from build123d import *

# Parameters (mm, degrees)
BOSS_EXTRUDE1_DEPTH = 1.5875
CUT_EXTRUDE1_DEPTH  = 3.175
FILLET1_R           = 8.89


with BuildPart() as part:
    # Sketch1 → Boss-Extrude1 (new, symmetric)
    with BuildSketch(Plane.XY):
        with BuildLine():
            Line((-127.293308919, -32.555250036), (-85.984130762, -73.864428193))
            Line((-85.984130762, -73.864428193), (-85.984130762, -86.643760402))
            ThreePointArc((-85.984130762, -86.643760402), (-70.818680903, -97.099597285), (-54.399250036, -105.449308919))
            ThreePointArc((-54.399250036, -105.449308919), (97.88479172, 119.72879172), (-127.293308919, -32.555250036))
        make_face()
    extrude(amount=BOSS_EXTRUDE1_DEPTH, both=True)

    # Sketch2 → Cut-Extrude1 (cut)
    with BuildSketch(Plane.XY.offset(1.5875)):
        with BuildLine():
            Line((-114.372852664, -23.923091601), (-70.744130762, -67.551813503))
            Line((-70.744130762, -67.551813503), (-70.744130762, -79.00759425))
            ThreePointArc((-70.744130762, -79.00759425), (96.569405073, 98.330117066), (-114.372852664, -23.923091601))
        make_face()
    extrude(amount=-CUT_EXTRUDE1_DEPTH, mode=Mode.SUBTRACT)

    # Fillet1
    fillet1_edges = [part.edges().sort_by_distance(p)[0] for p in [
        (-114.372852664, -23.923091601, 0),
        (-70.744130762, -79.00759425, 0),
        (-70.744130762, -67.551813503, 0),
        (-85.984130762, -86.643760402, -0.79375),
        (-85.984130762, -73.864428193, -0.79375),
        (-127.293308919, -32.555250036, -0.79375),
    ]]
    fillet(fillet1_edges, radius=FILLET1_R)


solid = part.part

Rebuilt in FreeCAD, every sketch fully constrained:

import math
import FreeCAD as App
import Part
import Sketcher
Q = App.Units.Quantity


def edges_at(feature, points):
    """Names of the edges that pass closest to the given points."""
    edges = feature.Shape.Edges
    near = lambda p: min(range(len(edges)), key=lambda i: edges[i].distToShape(Part.Vertex(*p))[0])
    return sorted({f"Edge{near(p) + 1}" for p in points})

doc = App.newDocument("Part")
body = doc.addObject("PartDesign::Body", "Body")

# Sketch on XY plane
sketch1 = body.newObject("Sketcher::SketchObject", "Sketch")
sketch1.AttachmentSupport = (doc.getObject("XY_Plane"), [""])
sketch1.MapMode = "FlatFace"
sketch1.addGeometry([
    Part.LineSegment(App.Vector(-127.293309, -32.55525, 0), App.Vector(-85.984131, -73.864428, 0)),
    Part.LineSegment(App.Vector(-85.984131, -73.864428, 0), App.Vector(-85.984131, -86.64376, 0)),
    Part.ArcOfCircle(Part.Circle(App.Vector(0, 21.844, 0), App.Vector(0, 0, 1), 138.43), math.radians(-128.399284), math.radians(-113.139614)),
    Part.ArcOfCircle(Part.Circle(App.Vector(0, 21.844, 0), App.Vector(0, 0, 1), 138.43), math.radians(-113.139614), math.radians(203.139614)),
], False)
sketch1.addConstraint([
    Sketcher.Constraint("Coincident", 0, 2, 1, 1),
    Sketcher.Constraint("Coincident", 1, 2, 2, 1),
    Sketcher.Constraint("Tangent", 2, 2, 3, 1),
    Sketcher.Constraint("Coincident", 3, 2, 0, 1),
    Sketcher.Constraint("Vertical", 1),
    Sketcher.Constraint("Equal", 2, 3),
    Sketcher.Constraint("PointOnObject", 2, 3, -2),
    Sketcher.Constraint("Radius", 2, Q("5.45 in")),
    Sketcher.Constraint("Angle", 0, Q("-45 deg")),
    Sketcher.Constraint("Distance", 0, Q("2.3 in")),
    Sketcher.Constraint("DistanceY", -1, 1, 2, 3, Q("0.86 in")),
    Sketcher.Constraint("DistanceY", 1, 2, 1, 1, Q("12.779332 mm")),
    Sketcher.Constraint("DistanceX", 2, 2, -1, 1, Q("54.39925 mm")),
])
pad1 = body.newObject("PartDesign::Pad", "Pad")
pad1.Profile = sketch1
pad1.Length = Q("0.125 in")
pad1.Midplane = True

# Sketch on XY plane
sketch2 = body.newObject("Sketcher::SketchObject", "Sketch001")
sketch2.AttachmentSupport = (doc.getObject("XY_Plane"), [""])
sketch2.MapMode = "FlatFace"
sketch2.AttachmentOffset = App.Placement(App.Vector(0, 0, 0.0625 * 25.4), App.Rotation())
sketch2.addGeometry([
    Part.LineSegment(App.Vector(-114.372853, -23.923092, 0), App.Vector(-70.744131, -67.551814, 0)),
    Part.LineSegment(App.Vector(-70.744131, -67.551814, 0), App.Vector(-70.744131, -79.007594, 0)),
    Part.ArcOfCircle(Part.Circle(App.Vector(0, 21.844, 0), App.Vector(0, 0, 1), 123.19), math.radians(-125.048418), math.radians(201.809161)),
], False)
sketch2.addConstraint([
    Sketcher.Constraint("Coincident", 0, 2, 1, 1),
    Sketcher.Constraint("Coincident", 1, 2, 2, 1),
    Sketcher.Constraint("Coincident", 2, 2, 0, 1),
    Sketcher.Constraint("Vertical", 1),
    Sketcher.Constraint("PointOnObject", 2, 3, -2),
    Sketcher.Constraint("Radius", 2, Q("4.85 in")),
    Sketcher.Constraint("Angle", 0, Q("-45 deg")),
    Sketcher.Constraint("DistanceY", -1, 1, 2, 3, Q("0.86 in")),
    Sketcher.Constraint("DistanceY", 1, 2, 1, 1, Q("11.455781 mm")),
    Sketcher.Constraint("Distance", 0, Q("61.70033 mm")),
])
pocket1 = body.newObject("PartDesign::Pocket", "Pocket")
pocket1.Profile = sketch2
pocket1.Length = Q("0.125 in")
doc.recompute()

fillet = body.newObject("PartDesign::Fillet", "Fillet")
fillet.Base = (pocket1, edges_at(pocket1, [
    (-114.373, -23.923, 0),
    (-70.744, -79.008, 0),
    (-70.744, -67.552, 0),
    (-85.984, -86.644, 0),
    (-85.984, -73.864, 0),
    (-127.293, -32.555, 0),
]))
fillet.Radius = Q("0.35 in")

doc.recompute()
